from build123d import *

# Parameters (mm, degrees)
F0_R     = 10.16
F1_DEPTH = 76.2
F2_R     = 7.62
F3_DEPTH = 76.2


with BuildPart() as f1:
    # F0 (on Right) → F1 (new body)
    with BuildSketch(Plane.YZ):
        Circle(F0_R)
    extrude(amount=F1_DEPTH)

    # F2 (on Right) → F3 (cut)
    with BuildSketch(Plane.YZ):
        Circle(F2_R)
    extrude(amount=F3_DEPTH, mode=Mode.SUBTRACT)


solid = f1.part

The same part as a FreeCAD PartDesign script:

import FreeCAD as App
import Part
import Sketcher

V = App.Vector
Q = App.Units.Quantity

doc = App.newDocument("Part")
body = doc.addObject("PartDesign::Body", "Body")

# Sketch on YZ plane
sketch1 = body.newObject("Sketcher::SketchObject", "Sketch")
sketch1.AttachmentSupport = (doc.getObject("YZ_Plane"), [""])
sketch1.MapMode = "FlatFace"
sketch1.addGeometry(Part.Circle(V(0, 0, 0), V(0, 0, 1), 10), False)
sketch1.addConstraint(Sketcher.Constraint("Coincident", 0, 3, -1, 1))
sketch1.addConstraint(Sketcher.Constraint("Diameter", 0, Q("0.8 in")))
pad1 = body.newObject("PartDesign::Pad", "Pad")
pad1.Profile = sketch1
pad1.Length = Q("3 in")

# Sketch on YZ plane
sketch2 = body.newObject("Sketcher::SketchObject", "Sketch001")
sketch2.AttachmentSupport = (doc.getObject("YZ_Plane"), [""])
sketch2.MapMode = "FlatFace"
sketch2.addGeometry(Part.Circle(V(0, 0, 0), V(0, 0, 1), 8), False)
sketch2.addConstraint(Sketcher.Constraint("Coincident", 0, 3, -1, 1))
sketch2.addConstraint(Sketcher.Constraint("Diameter", 0, Q("0.6 in")))
pocket1 = body.newObject("PartDesign::Pocket", "Pocket")
pocket1.Profile = sketch2
pocket1.Length = Q("3 in")
pocket1.Reversed = True

doc.recompute()
